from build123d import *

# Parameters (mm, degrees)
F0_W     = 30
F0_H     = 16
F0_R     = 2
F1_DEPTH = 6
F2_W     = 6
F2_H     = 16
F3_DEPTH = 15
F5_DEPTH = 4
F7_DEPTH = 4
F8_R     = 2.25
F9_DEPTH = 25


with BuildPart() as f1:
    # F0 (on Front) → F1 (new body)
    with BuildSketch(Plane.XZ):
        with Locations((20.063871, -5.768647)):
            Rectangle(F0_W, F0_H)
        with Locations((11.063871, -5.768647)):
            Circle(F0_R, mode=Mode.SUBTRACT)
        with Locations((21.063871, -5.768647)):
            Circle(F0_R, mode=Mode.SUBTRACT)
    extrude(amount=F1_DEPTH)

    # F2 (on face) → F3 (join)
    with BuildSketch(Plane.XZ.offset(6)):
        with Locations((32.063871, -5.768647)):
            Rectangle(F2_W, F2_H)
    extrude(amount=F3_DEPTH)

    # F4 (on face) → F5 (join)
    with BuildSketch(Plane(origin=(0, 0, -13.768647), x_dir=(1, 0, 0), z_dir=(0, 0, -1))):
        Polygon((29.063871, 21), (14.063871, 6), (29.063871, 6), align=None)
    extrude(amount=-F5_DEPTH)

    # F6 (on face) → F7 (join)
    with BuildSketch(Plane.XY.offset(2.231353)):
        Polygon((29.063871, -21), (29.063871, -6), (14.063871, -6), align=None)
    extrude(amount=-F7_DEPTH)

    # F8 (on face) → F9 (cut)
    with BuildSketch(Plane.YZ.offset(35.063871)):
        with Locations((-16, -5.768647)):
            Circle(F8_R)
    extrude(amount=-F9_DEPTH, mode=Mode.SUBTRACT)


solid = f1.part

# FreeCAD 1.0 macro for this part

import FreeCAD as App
import Part
import Sketcher
from FreeCAD import Vector


def add_polygon(sketch, points):
    """Adds a closed chain of lines whose ends are joined by coincident constraints."""
    first, n = sketch.GeometryCount, len(points)
    for a, b in zip(points, points[1:] + points[:1]):
        sketch.addGeometry(Part.LineSegment(App.Vector(*a, 0), App.Vector(*b, 0)), False)
    for i in range(n):
        sketch.addConstraint(Sketcher.Constraint("Coincident", first + i, 2, first + (i + 1) % n, 1))

doc = App.newDocument("Part")
params = doc.addObject("Spreadsheet::Sheet", "Params")
for row, (alias, value) in enumerate([
    ("sketch1_diameter", "4 mm"),
    ("sketch1_width", "30 mm"),
    ("sketch1_height", "16 mm"),
    ("pad1_length", "6 mm"),
    ("sketch2_width", "6 mm"),
    ("sketch2_height", "16 mm"),
    ("pad2_length", "15 mm"),
    ("sketch3_width", "15 mm"),
    ("pad3_length", "4 mm"),
    ("sketch4_width", "15 mm"),
    ("pad4_length", "4 mm"),
    ("sketch5_diameter", "4.5 mm"),
    ("pocket1_length", "25 mm"),
], start=1):
    params.set(f"A{row}", alias)
    params.set(f"B{row}", "=" + value)
    params.setAlias(f"B{row}", alias)

body = doc.addObject("PartDesign::Body", "Body")

sketch1 = body.newObject("Sketcher::SketchObject", "Sketch")
sketch1.AttachmentSupport = (doc.getObject("XZ_Plane"), [""])
sketch1.MapMode = "FlatFace"
add_polygon(sketch1, [(5.1, 2.2), (5.1, -13.8), (35.1, -13.8), (35.1, 2.2)])
sketch1.addGeometry(Part.Circle(Vector(11.1, -5.8, 0), Vector(0, 0, 1), 2), False)
sketch1.addGeometry(Part.Circle(Vector(21.1, -5.8, 0), Vector(0, 0, 1), 2), False)
sketch1.addConstraint([
    Sketcher.Constraint("Vertical", 0),
    Sketcher.Constraint("Horizontal", 1),
    Sketcher.Constraint("Vertical", 2),
    Sketcher.Constraint("Horizontal", 3),
    Sketcher.Constraint("Equal", 4, 5),
    Sketcher.Constraint("Horizontal", 4, 3, 5, 3),
    Sketcher.Constraint("Diameter", 4, 4.0),
    Sketcher.Constraint("DistanceX", 1, 1, 1, 2, 30.0),
    Sketcher.Constraint("DistanceY", 0, 2, 0, 1, 16.0),
    Sketcher.Constraint("DistanceX", 4, 3, 5, 3, 10.0),
    Sketcher.Constraint("DistanceX", 0, 2, 4, 3, 6.0),
    Sketcher.Constraint("DistanceY", 0, 2, 4, 3, 8.0),
    Sketcher.Constraint("DistanceX", -1, 1, 4, 3, 11.063871),
    Sketcher.Constraint("DistanceY", 4, 3, -1, 1, 5.768647),
])
sketch1.setExpression("Constraints[10]", "Params.sketch1_diameter")
sketch1.setExpression("Constraints[11]", "Params.sketch1_width")
sketch1.setExpression("Constraints[12]", "Params.sketch1_height")
pad1 = body.newObject("PartDesign::Pad", "Pad")
pad1.Profile = sketch1
pad1.setExpression("Length", "Params.pad1_length")

sketch2 = body.newObject("Sketcher::SketchObject", "Sketch001")
sketch2.AttachmentSupport = (doc.getObject("XZ_Plane"), [""])
sketch2.MapMode = "FlatFace"
sketch2.AttachmentOffset = App.Placement(Vector(0, 0, 6), App.Rotation())
add_polygon(sketch2, [(29, 2), (29, -14), (35, -14), (35, 2)])
sketch2.addConstraint([
    Sketcher.Constraint("Vertical", 0),
    Sketcher.Constraint("Horizontal", 1),
    Sketcher.Constraint("Vertical", 2),
    Sketcher.Constraint("Horizontal", 3),
    Sketcher.Constraint("DistanceX", 1, 1, 1, 2, 6.0),
    Sketcher.Constraint("DistanceY", 0, 2, 0, 1, 16.0),
    Sketcher.Constraint("DistanceX", -1, 1, 0, 2, 29.063871),
    Sketcher.Constraint("DistanceY", 0, 2, -1, 1, 13.768647),
])
sketch2.setExpression("Constraints[8]", "Params.sketch2_width")
sketch2.setExpression("Constraints[9]", "Params.sketch2_height")
pad2 = body.newObject("PartDesign::Pad", "Pad001")
pad2.Profile = sketch2
pad2.setExpression("Length", "Params.pad2_length")

sketch3 = body.newObject("Sketcher::SketchObject", "Sketch002")
sketch3.AttachmentSupport = (doc.getObject("XY_Plane"), [""])
sketch3.MapMode = "FlatFace"
sketch3.AttachmentOffset = App.Placement(Vector(0, 0, -13.768647), App.Rotation())
add_polygon(sketch3, [(29, -21), (14, -6), (29, -6)])
sketch3.addConstraint([
    Sketcher.Constraint("Horizontal", 1),
    Sketcher.Constraint("Vertical", 2),
    Sketcher.Constraint("Equal", 1, 2),
    Sketcher.Constraint("DistanceX", 1, 1, 1, 2, 15.0),
    Sketcher.Constraint("DistanceY", 0, 2, -1, 1, 6.0),
    Sketcher.Constraint("DistanceX", -1, 1, 0, 2, 14.063871),
])
sketch3.setExpression("Constraints[6]", "Params.sketch3_width")
pad3 = body.newObject("PartDesign::Pad", "Pad002")
pad3.Profile = sketch3
pad3.setExpression("Length", "Params.pad3_length")

sketch4 = body.newObject("Sketcher::SketchObject", "Sketch003")
sketch4.AttachmentSupport = (doc.getObject("XY_Plane"), [""])
sketch4.MapMode = "FlatFace"
sketch4.AttachmentOffset = App.Placement(Vector(0, 0, 2.231353), App.Rotation())
add_polygon(sketch4, [(29, -21), (29, -6), (14, -6)])
sketch4.addConstraint([
    Sketcher.Constraint("Vertical", 0),
    Sketcher.Constraint("Horizontal", 1),
    Sketcher.Constraint("Equal", 1, 0),
    Sketcher.Constraint("DistanceX", 1, 2, 1, 1, 15.0),
    Sketcher.Constraint("DistanceY", 0, 2, -1, 1, 6.0),
    Sketcher.Constraint("DistanceX", -1, 1, 0, 2, 29.063871),
])
sketch4.setExpression("Constraints[6]", "Params.sketch4_width")
pad4 = body.newObject("PartDesign::Pad", "Pad003")
pad4.Profile = sketch4
pad4.setExpression("Length", "Params.pad4_length")
pad4.Reversed = True

sketch5 = body.newObject("Sketcher::SketchObject", "Sketch004")
sketch5.AttachmentSupport = (doc.getObject("YZ_Plane"), [""])
sketch5.MapMode = "FlatFace"
sketch5.AttachmentOffset = App.Placement(Vector(0, 0, 35.063871), App.Rotation())
sketch5.addGeometry(Part.Circle(Vector(-16, -5.8, 0), Vector(0, 0, 1), 2.2), False)
sketch5.addConstraint([
    Sketcher.Constraint("Diameter", 0, 4.5),
    Sketcher.Constraint("DistanceX", 0, 3, -1, 1, 16.0),
    Sketcher.Constraint("DistanceY", 0, 3, -1, 1, 5.768647),
])
sketch5.setExpression("Constraints[0]", "Params.sketch5_diameter")
pocket1 = body.newObject("PartDesign::Pocket", "Pocket")
pocket1.Profile = sketch5
pocket1.setExpression("Length", "Params.pocket1_length")

doc.recompute()
